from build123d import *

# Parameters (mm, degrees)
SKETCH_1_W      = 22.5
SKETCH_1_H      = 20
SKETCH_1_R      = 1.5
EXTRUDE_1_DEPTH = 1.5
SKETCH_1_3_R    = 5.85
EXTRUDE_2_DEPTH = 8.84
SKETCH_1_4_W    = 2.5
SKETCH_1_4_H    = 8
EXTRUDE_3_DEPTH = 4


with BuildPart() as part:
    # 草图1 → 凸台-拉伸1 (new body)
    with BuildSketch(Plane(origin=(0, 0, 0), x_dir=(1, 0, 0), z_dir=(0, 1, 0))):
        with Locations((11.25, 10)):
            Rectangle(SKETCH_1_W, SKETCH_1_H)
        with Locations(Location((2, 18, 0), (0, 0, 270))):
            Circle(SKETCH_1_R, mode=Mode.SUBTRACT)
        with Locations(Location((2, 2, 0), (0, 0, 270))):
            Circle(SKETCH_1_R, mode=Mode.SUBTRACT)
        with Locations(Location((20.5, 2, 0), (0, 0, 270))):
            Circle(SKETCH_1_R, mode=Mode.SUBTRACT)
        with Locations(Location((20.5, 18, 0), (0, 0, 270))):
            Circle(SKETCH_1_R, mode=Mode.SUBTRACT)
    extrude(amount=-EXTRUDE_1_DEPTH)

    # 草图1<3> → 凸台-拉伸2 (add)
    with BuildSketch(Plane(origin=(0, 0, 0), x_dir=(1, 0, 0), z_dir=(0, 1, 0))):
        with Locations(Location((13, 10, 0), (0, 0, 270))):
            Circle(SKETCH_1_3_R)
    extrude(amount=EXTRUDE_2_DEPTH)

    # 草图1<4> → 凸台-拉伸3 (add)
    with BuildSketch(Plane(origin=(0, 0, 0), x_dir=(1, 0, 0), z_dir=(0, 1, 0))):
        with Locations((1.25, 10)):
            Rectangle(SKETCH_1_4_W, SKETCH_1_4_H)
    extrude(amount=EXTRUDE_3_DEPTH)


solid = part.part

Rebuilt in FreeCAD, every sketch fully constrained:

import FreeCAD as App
import Part
import Sketcher
from FreeCAD import Vector


def add_polygon(sketch, points):
    """Adds a closed chain of lines whose ends are joined by coincident constraints."""
    first, n = sketch.GeometryCount, len(points)
    for a, b in zip(points, points[1:] + points[:1]):
        sketch.addGeometry(Part.LineSegment(App.Vector(*a, 0), App.Vector(*b, 0)), False)
    for i in range(n):
        sketch.addConstraint(Sketcher.Constraint("Coincident", first + i, 2, first + (i + 1) % n, 1))

doc = App.newDocument("Part")
body = doc.addObject("PartDesign::Body", "Body")

sketch1 = body.newObject("Sketcher::SketchObject", "Sketch")
sketch1.AttachmentSupport = (doc.getObject("XZ_Plane"), [""])
sketch1.MapMode = "FlatFace"
add_polygon(sketch1, [(0, -20), (0, 0), (22.5, 0), (22.5, -20)])
sketch1.addGeometry(Part.Circle(Vector(2, -2, 0), Vector(0, 0, 1), 1.5), False)
sketch1.addGeometry(Part.Circle(Vector(20.5, -2, 0), Vector(0, 0, 1), 1.5), False)
sketch1.addGeometry(Part.Circle(Vector(2, -18, 0), Vector(0, 0, 1), 1.5), False)
sketch1.addGeometry(Part.Circle(Vector(20.5, -18, 0), Vector(0, 0, 1), 1.5), False)
sketch1.addConstraint([
    Sketcher.Constraint("Vertical", 0),
    Sketcher.Constraint("Horizontal", 1),
    Sketcher.Constraint("Vertical", 2),
    Sketcher.Constraint("Horizontal", 3),
    Sketcher.Constraint("Coincident", 0, 2, -1, 1),
    Sketcher.Constraint("Equal", 4, 5),
    Sketcher.Constraint("Equal", 5, 6),
    Sketcher.Constraint("Equal", 6, 7),
    Sketcher.Constraint("Horizontal", 4, 3, 5, 3),
    Sketcher.Constraint("Horizontal", 6, 3, 7, 3),
    Sketcher.Constraint("Vertical", 4, 3, 6, 3),
    Sketcher.Constraint("Vertical", 5, 3, 7, 3),
    Sketcher.Constraint("Diameter", 4, 3.0),
    Sketcher.Constraint("DistanceY", 0, 1, 0, 2, 20.0),
    Sketcher.Constraint("DistanceX", 1, 1, 1, 2, 22.5),
    Sketcher.Constraint("DistanceX", -1, 1, 4, 3, 2.0),
    Sketcher.Constraint("DistanceY", 4, 3, -1, 1, 2.0),
    Sketcher.Constraint("DistanceY", 6, 3, -1, 1, 18.0),
    Sketcher.Constraint("DistanceX", 5, 3, 1, 2, 2.0),
])
pad1 = body.newObject("PartDesign::Pad", "Pad")
pad1.Profile = sketch1
pad1.Length = 1.5

sketch2 = body.newObject("Sketcher::SketchObject", "Sketch001")
sketch2.AttachmentSupport = (doc.getObject("XZ_Plane"), [""])
sketch2.MapMode = "FlatFace"
sketch2.addGeometry(Part.Circle(Vector(13, -10, 0), Vector(0, 0, 1), 6), False)
sketch2.addConstraint([
    Sketcher.Constraint("Diameter", 0, 11.7),
    Sketcher.Constraint("DistanceX", -1, 1, 0, 3, 13.0),
    Sketcher.Constraint("DistanceY", 0, 3, -1, 1, 10.0),
])
pad2 = body.newObject("PartDesign::Pad", "Pad001")
pad2.Profile = sketch2
pad2.Length = 8.84
pad2.Reversed = True

sketch3 = body.newObject("Sketcher::SketchObject", "Sketch002")
sketch3.AttachmentSupport = (doc.getObject("XZ_Plane"), [""])
sketch3.MapMode = "FlatFace"
add_polygon(sketch3, [(0, -14), (0, -6), (2.5, -6), (2.5, -14)])
sketch3.addConstraint([
    Sketcher.Constraint("Vertical", 0),
    Sketcher.Constraint("Horizontal", 1),
    Sketcher.Constraint("Vertical", 2),
    Sketcher.Constraint("Horizontal", 3),
    Sketcher.Constraint("PointOnObject", 0, 2, -2),
    Sketcher.Constraint("DistanceY", 0, 1, 0, 2, 8.0),
    Sketcher.Constraint("DistanceX", 1, 1, 1, 2, 2.5),
    Sketcher.Constraint("DistanceY", 0, 2, -1, 1, 6.0),
])
pad3 = body.newObject("PartDesign::Pad", "Pad002")
pad3.Profile = sketch3
pad3.Length = 4
pad3.Reversed = True

doc.recompute()
